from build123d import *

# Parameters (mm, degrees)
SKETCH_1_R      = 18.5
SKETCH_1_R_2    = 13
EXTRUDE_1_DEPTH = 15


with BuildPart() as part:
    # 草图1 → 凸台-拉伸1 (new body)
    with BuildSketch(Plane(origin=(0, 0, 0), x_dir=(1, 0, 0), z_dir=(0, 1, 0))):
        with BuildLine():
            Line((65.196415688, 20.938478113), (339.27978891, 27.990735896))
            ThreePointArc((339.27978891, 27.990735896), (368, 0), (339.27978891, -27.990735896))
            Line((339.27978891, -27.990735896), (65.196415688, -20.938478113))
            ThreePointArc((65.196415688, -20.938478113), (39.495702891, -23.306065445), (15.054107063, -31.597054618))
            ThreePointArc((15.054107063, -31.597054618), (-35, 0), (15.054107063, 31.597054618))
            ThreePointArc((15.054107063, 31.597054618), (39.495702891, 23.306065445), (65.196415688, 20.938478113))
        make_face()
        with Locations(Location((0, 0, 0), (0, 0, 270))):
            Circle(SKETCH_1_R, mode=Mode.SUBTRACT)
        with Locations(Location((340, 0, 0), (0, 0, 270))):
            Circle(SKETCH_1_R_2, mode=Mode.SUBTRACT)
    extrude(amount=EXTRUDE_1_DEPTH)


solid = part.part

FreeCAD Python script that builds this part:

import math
import FreeCAD as App
import Part
import Sketcher
from FreeCAD import Vector

doc = App.newDocument("Part")
body = doc.addObject("PartDesign::Body", "Body")

# Sketch on XZ plane
sketch1 = body.newObject("Sketcher::SketchObject", "Sketch")
sketch1.AttachmentSupport = (doc.getObject("XZ_Plane"), [""])
sketch1.MapMode = "FlatFace"
sketch1.addGeometry(Part.LineSegment(Vector(339, -28, 0), Vector(65, -21, 0)), False)
sketch1.addGeometry(Part.ArcOfCircle(Part.Circle(Vector(62, -131, 0), Vector(0, 0, 1), 110), math.radians(89), math.radians(115)), False)
sketch1.addGeometry(Part.ArcOfCircle(Part.Circle(Vector(0, 0, 0), Vector(0, 0, 1), 35), math.radians(65), math.radians(295)), False)
sketch1.addGeometry(Part.ArcOfCircle(Part.Circle(Vector(62, 131, 0), Vector(0, 0, 1), 110), math.radians(-115), math.radians(-89)), False)
sketch1.addGeometry(Part.LineSegment(Vector(65, 21, 0), Vector(339, 28, 0)), False)
sketch1.addGeometry(Part.ArcOfCircle(Part.Circle(Vector(340, 0, 0), Vector(0, 0, 1), 28), math.radians(-91), math.radians(91)), False)
sketch1.addGeometry(Part.Circle(Vector(340, 0, 0), Vector(0, 0, 1), 13), False)
sketch1.addGeometry(Part.Circle(Vector(0, 0, 0), Vector(0, 0, 1), 18), False)
sketch1.addConstraint(Sketcher.Constraint("Tangent", 0, 2, 1, 1))
sketch1.addConstraint(Sketcher.Constraint("Tangent", 1, 2, 2, 2))
sketch1.addConstraint(Sketcher.Constraint("Tangent", 2, 1, 3, 1))
sketch1.addConstraint(Sketcher.Constraint("Tangent", 3, 2, 4, 1))
sketch1.addConstraint(Sketcher.Constraint("Tangent", 4, 2, 5, 2))
sketch1.addConstraint(Sketcher.Constraint("Tangent", 5, 1, 0, 1))
sketch1.addConstraint(Sketcher.Constraint("Coincident", 2, 3, -1, 1))
sketch1.addConstraint(Sketcher.Constraint("Coincident", 7, 3, -1, 1))
sketch1.addConstraint(Sketcher.Constraint("Coincident", 6, 3, 5, 3))
sketch1.addConstraint(Sketcher.Constraint("Equal", 1, 3))
sketch1.addConstraint(Sketcher.Constraint("Symmetric", 0, 2, 3, 2, -1))
sketch1.addConstraint(Sketcher.Constraint("Diameter", 6, 26.0))
sketch1.addConstraint(Sketcher.Constraint("Diameter", 7, 37.0))
sketch1.addConstraint(Sketcher.Constraint("Radius", 1, 110.0))
sketch1.addConstraint(Sketcher.Constraint("Radius", 2, 35.0))
sketch1.addConstraint(Sketcher.Constraint("Radius", 5, 28.0))
sketch1.addConstraint(Sketcher.Constraint("DistanceX", -1, 1, 5, 3, 340.0))
sketch1.addConstraint(Sketcher.Constraint("DistanceX", 1, 3, 0, 2, 2.829401))
pad1 = body.newObject("PartDesign::Pad", "Pad")
pad1.Profile = sketch1
pad1.Length = 15
pad1.Reversed = True

doc.recompute()
